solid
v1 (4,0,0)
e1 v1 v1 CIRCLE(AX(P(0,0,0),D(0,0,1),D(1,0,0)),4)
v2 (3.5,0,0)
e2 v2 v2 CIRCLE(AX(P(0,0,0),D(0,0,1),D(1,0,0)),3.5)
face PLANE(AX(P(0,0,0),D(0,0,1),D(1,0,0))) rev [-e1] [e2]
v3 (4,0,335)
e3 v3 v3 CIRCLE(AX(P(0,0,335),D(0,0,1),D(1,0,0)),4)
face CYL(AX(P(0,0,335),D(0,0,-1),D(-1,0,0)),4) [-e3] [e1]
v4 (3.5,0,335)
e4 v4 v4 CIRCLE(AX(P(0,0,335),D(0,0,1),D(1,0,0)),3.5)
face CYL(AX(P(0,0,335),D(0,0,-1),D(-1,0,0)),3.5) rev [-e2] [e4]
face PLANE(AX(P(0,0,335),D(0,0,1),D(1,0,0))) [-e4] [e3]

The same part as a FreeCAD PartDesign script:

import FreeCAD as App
import Part
import Sketcher
from FreeCAD import Vector
Q = App.Units.Quantity

doc = App.newDocument("Part")
params = doc.addObject("Spreadsheet::Sheet", "Params")
for row, (alias, value) in enumerate([
    ("sketch1_diameter", "8 mm"),
    ("sketch1_diameter2", "7 mm"),
    ("pad1_length", "335 mm"),
], start=1):
    params.set(f"A{row}", alias)
    params.set(f"B{row}", "=" + value)
    params.setAlias(f"B{row}", alias)

body = doc.addObject("PartDesign::Body", "Body")

sketch1 = body.newObject("Sketcher::SketchObject", "Sketch")
sketch1.AttachmentSupport = (doc.getObject("XY_Plane"), [""])
sketch1.MapMode = "FlatFace"
sketch1.addGeometry(Part.Circle(Vector(0, 0, 0), Vector(0, 0, 1), 4), False)
sketch1.addGeometry(Part.Circle(Vector(0, 0, 0), Vector(0, 0, 1), 3.5), False)
sketch1.addConstraint(Sketcher.Constraint("Coincident", 0, 3, -1, 1))
sketch1.addConstraint(Sketcher.Constraint("Coincident", 1, 3, -1, 1))
sketch1.addConstraint(Sketcher.Constraint("Diameter", 0, Q("8 mm")))
sketch1.addConstraint(Sketcher.Constraint("Diameter", 1, Q("7 mm")))
sketch1.setExpression("Constraints[2]", "Params.sketch1_diameter")
sketch1.setExpression("Constraints[3]", "Params.sketch1_diameter2")
pad1 = body.newObject("PartDesign::Pad", "Pad")
pad1.Profile = sketch1
pad1.setExpression("Length", "Params.pad1_length")

doc.recompute()
